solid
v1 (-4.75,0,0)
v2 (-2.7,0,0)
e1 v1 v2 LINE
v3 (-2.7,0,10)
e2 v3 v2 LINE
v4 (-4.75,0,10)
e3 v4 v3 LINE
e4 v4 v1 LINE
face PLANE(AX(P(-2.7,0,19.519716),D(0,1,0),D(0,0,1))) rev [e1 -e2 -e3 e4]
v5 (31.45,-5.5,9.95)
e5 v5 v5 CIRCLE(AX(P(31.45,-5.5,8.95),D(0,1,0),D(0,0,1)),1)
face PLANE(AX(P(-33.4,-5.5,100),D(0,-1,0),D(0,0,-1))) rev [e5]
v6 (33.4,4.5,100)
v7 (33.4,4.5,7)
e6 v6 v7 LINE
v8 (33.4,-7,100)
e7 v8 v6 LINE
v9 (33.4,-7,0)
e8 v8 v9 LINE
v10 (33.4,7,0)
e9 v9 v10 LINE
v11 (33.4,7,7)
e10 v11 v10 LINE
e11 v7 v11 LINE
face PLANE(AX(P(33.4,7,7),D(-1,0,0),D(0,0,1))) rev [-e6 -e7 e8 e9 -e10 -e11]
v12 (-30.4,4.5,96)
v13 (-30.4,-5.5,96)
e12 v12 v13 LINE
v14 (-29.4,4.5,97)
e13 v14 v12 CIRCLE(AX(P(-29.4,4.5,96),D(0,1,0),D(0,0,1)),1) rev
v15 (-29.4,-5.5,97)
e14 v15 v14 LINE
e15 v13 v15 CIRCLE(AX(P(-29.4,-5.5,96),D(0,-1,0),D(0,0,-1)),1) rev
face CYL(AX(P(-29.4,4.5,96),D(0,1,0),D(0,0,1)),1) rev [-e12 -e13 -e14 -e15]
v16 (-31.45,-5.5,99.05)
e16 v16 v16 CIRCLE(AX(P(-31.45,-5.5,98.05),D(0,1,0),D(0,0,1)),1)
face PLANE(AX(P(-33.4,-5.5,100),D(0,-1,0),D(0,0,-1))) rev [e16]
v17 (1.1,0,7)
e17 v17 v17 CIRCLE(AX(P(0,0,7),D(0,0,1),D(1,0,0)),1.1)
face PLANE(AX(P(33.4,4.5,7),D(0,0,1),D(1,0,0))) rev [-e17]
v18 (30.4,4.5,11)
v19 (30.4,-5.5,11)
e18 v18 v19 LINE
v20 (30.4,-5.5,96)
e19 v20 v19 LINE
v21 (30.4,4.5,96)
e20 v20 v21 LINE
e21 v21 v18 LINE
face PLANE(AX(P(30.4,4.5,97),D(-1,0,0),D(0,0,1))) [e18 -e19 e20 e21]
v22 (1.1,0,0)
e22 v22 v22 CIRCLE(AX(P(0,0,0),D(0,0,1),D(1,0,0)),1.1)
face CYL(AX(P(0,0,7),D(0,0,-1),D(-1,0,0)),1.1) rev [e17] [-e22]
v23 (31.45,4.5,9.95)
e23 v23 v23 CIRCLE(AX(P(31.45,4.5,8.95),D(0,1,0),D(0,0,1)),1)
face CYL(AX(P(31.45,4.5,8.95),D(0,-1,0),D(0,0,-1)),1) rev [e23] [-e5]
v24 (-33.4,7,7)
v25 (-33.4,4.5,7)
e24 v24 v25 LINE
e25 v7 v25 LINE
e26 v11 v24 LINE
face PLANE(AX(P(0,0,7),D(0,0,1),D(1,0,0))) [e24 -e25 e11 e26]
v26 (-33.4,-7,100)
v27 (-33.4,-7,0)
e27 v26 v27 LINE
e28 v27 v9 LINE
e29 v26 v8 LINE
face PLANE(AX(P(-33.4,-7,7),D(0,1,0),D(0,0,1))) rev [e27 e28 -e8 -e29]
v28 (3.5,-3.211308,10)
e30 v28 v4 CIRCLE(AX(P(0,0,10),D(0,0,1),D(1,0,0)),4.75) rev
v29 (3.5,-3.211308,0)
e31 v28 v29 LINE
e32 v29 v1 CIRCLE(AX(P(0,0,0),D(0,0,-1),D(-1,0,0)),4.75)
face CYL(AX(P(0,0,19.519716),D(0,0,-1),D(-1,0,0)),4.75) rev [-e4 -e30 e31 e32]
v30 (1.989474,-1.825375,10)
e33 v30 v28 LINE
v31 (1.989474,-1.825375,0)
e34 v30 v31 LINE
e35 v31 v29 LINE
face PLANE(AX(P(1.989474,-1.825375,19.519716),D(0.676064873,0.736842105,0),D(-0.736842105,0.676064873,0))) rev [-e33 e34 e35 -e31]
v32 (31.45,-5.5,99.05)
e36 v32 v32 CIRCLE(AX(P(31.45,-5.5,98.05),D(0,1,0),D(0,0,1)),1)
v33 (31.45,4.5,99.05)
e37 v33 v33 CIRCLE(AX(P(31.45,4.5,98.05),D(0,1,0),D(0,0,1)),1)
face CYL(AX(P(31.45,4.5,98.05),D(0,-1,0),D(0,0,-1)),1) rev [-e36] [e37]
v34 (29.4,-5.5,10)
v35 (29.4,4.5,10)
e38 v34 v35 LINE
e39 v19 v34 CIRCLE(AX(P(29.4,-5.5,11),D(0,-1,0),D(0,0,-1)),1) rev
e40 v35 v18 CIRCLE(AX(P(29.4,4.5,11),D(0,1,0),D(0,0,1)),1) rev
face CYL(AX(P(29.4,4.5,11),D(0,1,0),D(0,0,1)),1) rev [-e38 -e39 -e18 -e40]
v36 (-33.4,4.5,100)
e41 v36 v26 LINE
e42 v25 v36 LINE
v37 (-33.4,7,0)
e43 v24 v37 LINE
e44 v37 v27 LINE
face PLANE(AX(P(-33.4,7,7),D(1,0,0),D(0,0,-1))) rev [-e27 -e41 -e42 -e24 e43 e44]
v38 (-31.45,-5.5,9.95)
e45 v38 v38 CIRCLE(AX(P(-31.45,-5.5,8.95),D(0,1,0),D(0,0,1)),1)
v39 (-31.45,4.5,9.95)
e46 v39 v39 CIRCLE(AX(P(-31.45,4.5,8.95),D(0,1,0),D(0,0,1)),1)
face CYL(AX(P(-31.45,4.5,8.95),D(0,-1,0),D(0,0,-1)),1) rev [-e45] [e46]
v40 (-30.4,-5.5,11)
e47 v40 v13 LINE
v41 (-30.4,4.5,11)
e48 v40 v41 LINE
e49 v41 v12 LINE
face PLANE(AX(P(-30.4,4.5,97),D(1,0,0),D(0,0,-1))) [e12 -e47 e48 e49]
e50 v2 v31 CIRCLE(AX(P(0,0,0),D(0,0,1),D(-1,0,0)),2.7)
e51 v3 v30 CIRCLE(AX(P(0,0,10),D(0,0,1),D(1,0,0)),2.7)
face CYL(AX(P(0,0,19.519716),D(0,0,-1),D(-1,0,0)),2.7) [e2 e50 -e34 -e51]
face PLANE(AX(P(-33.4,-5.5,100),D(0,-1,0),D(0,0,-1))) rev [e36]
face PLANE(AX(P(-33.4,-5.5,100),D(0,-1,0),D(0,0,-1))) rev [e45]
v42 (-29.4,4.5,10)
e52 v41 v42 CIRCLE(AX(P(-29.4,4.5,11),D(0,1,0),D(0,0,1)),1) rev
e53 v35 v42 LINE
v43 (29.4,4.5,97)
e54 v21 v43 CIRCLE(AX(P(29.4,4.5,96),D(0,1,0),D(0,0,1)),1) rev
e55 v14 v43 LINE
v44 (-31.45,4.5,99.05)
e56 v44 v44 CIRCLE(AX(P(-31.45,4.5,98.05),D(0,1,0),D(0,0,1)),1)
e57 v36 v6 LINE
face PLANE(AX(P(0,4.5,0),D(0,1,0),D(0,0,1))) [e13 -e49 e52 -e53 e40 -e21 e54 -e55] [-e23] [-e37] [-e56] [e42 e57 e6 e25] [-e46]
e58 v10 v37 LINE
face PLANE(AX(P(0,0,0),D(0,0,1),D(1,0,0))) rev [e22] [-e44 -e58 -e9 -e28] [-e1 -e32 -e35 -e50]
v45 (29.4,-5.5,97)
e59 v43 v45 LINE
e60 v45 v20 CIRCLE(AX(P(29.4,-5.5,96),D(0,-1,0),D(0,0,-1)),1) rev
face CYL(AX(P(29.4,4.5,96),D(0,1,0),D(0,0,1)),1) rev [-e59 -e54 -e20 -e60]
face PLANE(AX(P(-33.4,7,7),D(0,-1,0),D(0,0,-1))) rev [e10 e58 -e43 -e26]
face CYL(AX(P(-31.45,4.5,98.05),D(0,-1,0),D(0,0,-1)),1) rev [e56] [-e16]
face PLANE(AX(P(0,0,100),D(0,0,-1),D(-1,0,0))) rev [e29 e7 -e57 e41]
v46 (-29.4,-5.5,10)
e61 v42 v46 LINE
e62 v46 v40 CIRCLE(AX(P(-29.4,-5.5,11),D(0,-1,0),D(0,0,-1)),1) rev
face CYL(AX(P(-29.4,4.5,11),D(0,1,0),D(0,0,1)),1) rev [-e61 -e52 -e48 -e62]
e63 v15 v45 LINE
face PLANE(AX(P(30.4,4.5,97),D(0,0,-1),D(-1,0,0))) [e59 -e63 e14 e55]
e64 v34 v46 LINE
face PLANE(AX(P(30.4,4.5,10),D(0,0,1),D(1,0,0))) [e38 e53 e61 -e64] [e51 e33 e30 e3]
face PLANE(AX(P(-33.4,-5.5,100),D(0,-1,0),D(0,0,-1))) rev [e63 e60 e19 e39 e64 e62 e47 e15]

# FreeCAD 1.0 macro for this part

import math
import FreeCAD as App
import Part
import Sketcher


def edges_at(feature, points):
    """Names of the edges that pass closest to the given points."""
    edges = feature.Shape.Edges
    near = lambda p: min(range(len(edges)), key=lambda i: edges[i].distToShape(Part.Vertex(*p))[0])
    return sorted({f"Edge{near(p) + 1}" for p in points})


def add_polygon(sketch, points):
    """Adds a closed chain of lines whose ends are joined by coincident constraints."""
    first, n = sketch.GeometryCount, len(points)
    for a, b in zip(points, points[1:] + points[:1]):
        sketch.addGeometry(Part.LineSegment(App.Vector(*a, 0), App.Vector(*b, 0)), False)
    for i in range(n):
        sketch.addConstraint(Sketcher.Constraint("Coincident", first + i, 2, first + (i + 1) % n, 1))

doc = App.newDocument("Part")
body = doc.addObject("PartDesign::Body", "Body")

# Sketch on XY plane
sketch1 = doc.addObject("Sketcher::SketchObject", "Sketch")
body.addObject(sketch1)
sketch1.AttachmentSupport = (doc.XY_Plane, [""])
sketch1.MapMode = "FlatFace"
add_polygon(sketch1, [(-33.4, 7), (-33.4, -7), (33.4, -7), (33.4, 7)])  # lines 0-3
sketch1.addGeometry(Part.Circle(App.Vector(0, 0, 0), App.Vector(0, 0, 1), 1.1), False)  # 4
sketch1.addConstraint(Sketcher.Constraint("Vertical", 0))
sketch1.addConstraint(Sketcher.Constraint("Horizontal", 1))
sketch1.addConstraint(Sketcher.Constraint("Vertical", 2))
sketch1.addConstraint(Sketcher.Constraint("Horizontal", 3))
sketch1.addConstraint(Sketcher.Constraint("Coincident", 4, 3, -1, 1))
sketch1.addConstraint(Sketcher.Constraint("Symmetric", 0, 2, 2, 2, -1, 1))
sketch1.addConstraint(Sketcher.Constraint("Diameter", 4, 2.2))
sketch1.addConstraint(Sketcher.Constraint("DistanceY", 0, 2, 0, 1, 14.0))
sketch1.addConstraint(Sketcher.Constraint("DistanceX", 1, 1, 1, 2, 66.8))
pad1 = doc.addObject("PartDesign::Pad", "Pad")
body.addObject(pad1)
pad1.Profile = sketch1
pad1.Length = 7

# Sketch on XY plane
sketch2 = doc.addObject("Sketcher::SketchObject", "Sketch001")
body.addObject(sketch2)
sketch2.AttachmentSupport = (doc.XY_Plane, [""])
sketch2.MapMode = "FlatFace"
sketch2.AttachmentOffset = App.Placement(App.Vector(0, 0, 7), App.Rotation())
add_polygon(sketch2, [(-33.4, -5.5), (-33.4, -7), (33.4, -7), (33.4, -5.5)])  # lines 0-3
sketch2.addConstraint(Sketcher.Constraint("Vertical", 0))
sketch2.addConstraint(Sketcher.Constraint("Horizontal", 1))
sketch2.addConstraint(Sketcher.Constraint("Vertical", 2))
sketch2.addConstraint(Sketcher.Constraint("Horizontal", 3))
sketch2.addConstraint(Sketcher.Constraint("DistanceX", 1, 1, 1, 2, 66.8))
sketch2.addConstraint(Sketcher.Constraint("DistanceY", 0, 2, 0, 1, 1.5))
sketch2.addConstraint(Sketcher.Constraint("DistanceY", 0, 2, -1, 1, 7.0))
sketch2.addConstraint(Sketcher.Constraint("DistanceX", 0, 2, -1, 1, 33.4))
pad2 = doc.addObject("PartDesign::Pad", "Pad001")
body.addObject(pad2)
pad2.Profile = sketch2
pad2.Length = 93

# Sketch on XZ plane
sketch3 = doc.addObject("Sketcher::SketchObject", "Sketch002")
body.addObject(sketch3)
sketch3.AttachmentSupport = (doc.XZ_Plane, [""])
sketch3.MapMode = "FlatFace"
sketch3.AttachmentOffset = App.Placement(App.Vector(0, 0, 5.5), App.Rotation())
add_polygon(sketch3, [(-33.4, 7), (-33.4, 100), (33.4, 100), (33.4, 7)])  # lines 0-3
sketch3.addGeometry(Part.Circle(App.Vector(-31.4, 98, 0), App.Vector(0, 0, 1), 1), False)  # 4
sketch3.addGeometry(Part.Circle(App.Vector(31.4, 98, 0), App.Vector(0, 0, 1), 1), False)  # 5
sketch3.addGeometry(Part.Circle(App.Vector(-31.4, 8.9, 0), App.Vector(0, 0, 1), 1), False)  # 6
add_polygon(sketch3, [(30.4, 97), (-30.4, 97), (-30.4, 10), (30.4, 10)])  # lines 7-10
sketch3.addGeometry(Part.Circle(App.Vector(31.4, 8.9, 0), App.Vector(0, 0, 1), 1), False)  # 11
sketch3.addConstraint(Sketcher.Constraint("Vertical", 0))
sketch3.addConstraint(Sketcher.Constraint("Horizontal", 1))
sketch3.addConstraint(Sketcher.Constraint("Vertical", 2))
sketch3.addConstraint(Sketcher.Constraint("Horizontal", 3))
sketch3.addConstraint(Sketcher.Constraint("Horizontal", 7))
sketch3.addConstraint(Sketcher.Constraint("Vertical", 8))
sketch3.addConstraint(Sketcher.Constraint("Horizontal", 9))
sketch3.addConstraint(Sketcher.Constraint("Vertical", 10))
sketch3.addConstraint(Sketcher.Constraint("Equal", 4, 5))
sketch3.addConstraint(Sketcher.Constraint("Equal", 5, 6))
sketch3.addConstraint(Sketcher.Constraint("Equal", 6, 11))
sketch3.addConstraint(Sketcher.Constraint("Symmetric", 4, 3, 5, 3, -2))
sketch3.addConstraint(Sketcher.Constraint("Symmetric", 6, 3, 11, 3, -2))
sketch3.addConstraint(Sketcher.Constraint("Vertical", 4, 3, 6, 3))
sketch3.addConstraint(Sketcher.Constraint("Diameter", 4, 2.0))
sketch3.addConstraint(Sketcher.Constraint("DistanceY", 0, 1, 0, 2, 93.0))
sketch3.addConstraint(Sketcher.Constraint("DistanceY", 8, 2, 8, 1, 87.0))
sketch3.addConstraint(Sketcher.Constraint("DistanceX", 1, 1, 1, 2, 66.8))
sketch3.addConstraint(Sketcher.Constraint("DistanceX", 7, 2, 7, 1, 60.8))
sketch3.addConstraint(Sketcher.Constraint("DistanceY", -1, 1, 0, 2, 100.0))
sketch3.addConstraint(Sketcher.Constraint("DistanceY", -1, 1, 7, 2, 97.0))
sketch3.addConstraint(Sketcher.Constraint("DistanceX", 0, 2, 7, 2, 3.0))
sketch3.addConstraint(Sketcher.Constraint("DistanceX", 0, 2, -1, 1, 33.4))
sketch3.addConstraint(Sketcher.Constraint("DistanceX", 4, 3, 5, 3, 62.9))
sketch3.addConstraint(Sketcher.Constraint("DistanceY", 6, 3, 4, 3, 89.1))
sketch3.addConstraint(Sketcher.Constraint("DistanceY", -1, 1, 4, 3, 98.05))
pad3 = doc.addObject("PartDesign::Pad", "Pad002")
body.addObject(pad3)
pad3.Profile = sketch3
pad3.Length = 10
pad3.Reversed = True
doc.recompute()

fillet = doc.addObject("PartDesign::Fillet", "Fillet")
body.addObject(fillet)
fillet.Base = (pad3, edges_at(pad3, [
    (30.4, -0.5, 97),
    (30.4, -0.5, 10),
    (-30.4, -0.5, 10),
    (-30.4, -0.5, 97),
]))
fillet.Radius = 1

# Sketch on XY plane
sketch4 = doc.addObject("Sketcher::SketchObject", "Sketch003")
body.addObject(sketch4)
sketch4.AttachmentSupport = (doc.XY_Plane, [""])
sketch4.MapMode = "FlatFace"
sketch4.addGeometry(Part.LineSegment(App.Vector(-4.8, 0, 0), App.Vector(-2.7, 0, 0)), False)
sketch4.addGeometry(Part.ArcOfCircle(Part.Circle(App.Vector(0, 0, 0), App.Vector(0, 0, 1), 2.7), math.radians(180), math.radians(317)), False)
sketch4.addGeometry(Part.LineSegment(App.Vector(2, -1.8, 0), App.Vector(3.5, -3.2, 0)), False)
sketch4.addGeometry(Part.ArcOfCircle(Part.Circle(App.Vector(0, 0, 0), App.Vector(0, 0, 1), 4.8), math.radians(-180), math.radians(-43)), False)
sketch4.addConstraint(Sketcher.Constraint("Coincident", 0, 2, 1, 1))
sketch4.addConstraint(Sketcher.Constraint("Coincident", 1, 2, 2, 1))
sketch4.addConstraint(Sketcher.Constraint("Coincident", 2, 2, 3, 2))
sketch4.addConstraint(Sketcher.Constraint("Coincident", 3, 1, 0, 1))
sketch4.addConstraint(Sketcher.Constraint("Horizontal", 0))
sketch4.addConstraint(Sketcher.Constraint("Coincident", 1, 3, -1, 1))
sketch4.addConstraint(Sketcher.Constraint("Coincident", 3, 3, -1, 1))
sketch4.addConstraint(Sketcher.Constraint("PointOnObject", 0, 2, -1))
sketch4.addConstraint(Sketcher.Constraint("Radius", 1, 2.7))
sketch4.addConstraint(Sketcher.Constraint("Radius", 3, 4.75))
sketch4.addConstraint(Sketcher.Constraint("DistanceX", -1, 1, 2, 2, 3.5))
sketch4.addConstraint(Sketcher.Constraint("DistanceX", -1, 1, 1, 2, 1.989474))
pocket1 = doc.addObject("PartDesign::Pocket", "Pocket")
body.addObject(pocket1)
pocket1.Profile = sketch4
pocket1.Length = 10
pocket1.Reversed = True

doc.recompute()
